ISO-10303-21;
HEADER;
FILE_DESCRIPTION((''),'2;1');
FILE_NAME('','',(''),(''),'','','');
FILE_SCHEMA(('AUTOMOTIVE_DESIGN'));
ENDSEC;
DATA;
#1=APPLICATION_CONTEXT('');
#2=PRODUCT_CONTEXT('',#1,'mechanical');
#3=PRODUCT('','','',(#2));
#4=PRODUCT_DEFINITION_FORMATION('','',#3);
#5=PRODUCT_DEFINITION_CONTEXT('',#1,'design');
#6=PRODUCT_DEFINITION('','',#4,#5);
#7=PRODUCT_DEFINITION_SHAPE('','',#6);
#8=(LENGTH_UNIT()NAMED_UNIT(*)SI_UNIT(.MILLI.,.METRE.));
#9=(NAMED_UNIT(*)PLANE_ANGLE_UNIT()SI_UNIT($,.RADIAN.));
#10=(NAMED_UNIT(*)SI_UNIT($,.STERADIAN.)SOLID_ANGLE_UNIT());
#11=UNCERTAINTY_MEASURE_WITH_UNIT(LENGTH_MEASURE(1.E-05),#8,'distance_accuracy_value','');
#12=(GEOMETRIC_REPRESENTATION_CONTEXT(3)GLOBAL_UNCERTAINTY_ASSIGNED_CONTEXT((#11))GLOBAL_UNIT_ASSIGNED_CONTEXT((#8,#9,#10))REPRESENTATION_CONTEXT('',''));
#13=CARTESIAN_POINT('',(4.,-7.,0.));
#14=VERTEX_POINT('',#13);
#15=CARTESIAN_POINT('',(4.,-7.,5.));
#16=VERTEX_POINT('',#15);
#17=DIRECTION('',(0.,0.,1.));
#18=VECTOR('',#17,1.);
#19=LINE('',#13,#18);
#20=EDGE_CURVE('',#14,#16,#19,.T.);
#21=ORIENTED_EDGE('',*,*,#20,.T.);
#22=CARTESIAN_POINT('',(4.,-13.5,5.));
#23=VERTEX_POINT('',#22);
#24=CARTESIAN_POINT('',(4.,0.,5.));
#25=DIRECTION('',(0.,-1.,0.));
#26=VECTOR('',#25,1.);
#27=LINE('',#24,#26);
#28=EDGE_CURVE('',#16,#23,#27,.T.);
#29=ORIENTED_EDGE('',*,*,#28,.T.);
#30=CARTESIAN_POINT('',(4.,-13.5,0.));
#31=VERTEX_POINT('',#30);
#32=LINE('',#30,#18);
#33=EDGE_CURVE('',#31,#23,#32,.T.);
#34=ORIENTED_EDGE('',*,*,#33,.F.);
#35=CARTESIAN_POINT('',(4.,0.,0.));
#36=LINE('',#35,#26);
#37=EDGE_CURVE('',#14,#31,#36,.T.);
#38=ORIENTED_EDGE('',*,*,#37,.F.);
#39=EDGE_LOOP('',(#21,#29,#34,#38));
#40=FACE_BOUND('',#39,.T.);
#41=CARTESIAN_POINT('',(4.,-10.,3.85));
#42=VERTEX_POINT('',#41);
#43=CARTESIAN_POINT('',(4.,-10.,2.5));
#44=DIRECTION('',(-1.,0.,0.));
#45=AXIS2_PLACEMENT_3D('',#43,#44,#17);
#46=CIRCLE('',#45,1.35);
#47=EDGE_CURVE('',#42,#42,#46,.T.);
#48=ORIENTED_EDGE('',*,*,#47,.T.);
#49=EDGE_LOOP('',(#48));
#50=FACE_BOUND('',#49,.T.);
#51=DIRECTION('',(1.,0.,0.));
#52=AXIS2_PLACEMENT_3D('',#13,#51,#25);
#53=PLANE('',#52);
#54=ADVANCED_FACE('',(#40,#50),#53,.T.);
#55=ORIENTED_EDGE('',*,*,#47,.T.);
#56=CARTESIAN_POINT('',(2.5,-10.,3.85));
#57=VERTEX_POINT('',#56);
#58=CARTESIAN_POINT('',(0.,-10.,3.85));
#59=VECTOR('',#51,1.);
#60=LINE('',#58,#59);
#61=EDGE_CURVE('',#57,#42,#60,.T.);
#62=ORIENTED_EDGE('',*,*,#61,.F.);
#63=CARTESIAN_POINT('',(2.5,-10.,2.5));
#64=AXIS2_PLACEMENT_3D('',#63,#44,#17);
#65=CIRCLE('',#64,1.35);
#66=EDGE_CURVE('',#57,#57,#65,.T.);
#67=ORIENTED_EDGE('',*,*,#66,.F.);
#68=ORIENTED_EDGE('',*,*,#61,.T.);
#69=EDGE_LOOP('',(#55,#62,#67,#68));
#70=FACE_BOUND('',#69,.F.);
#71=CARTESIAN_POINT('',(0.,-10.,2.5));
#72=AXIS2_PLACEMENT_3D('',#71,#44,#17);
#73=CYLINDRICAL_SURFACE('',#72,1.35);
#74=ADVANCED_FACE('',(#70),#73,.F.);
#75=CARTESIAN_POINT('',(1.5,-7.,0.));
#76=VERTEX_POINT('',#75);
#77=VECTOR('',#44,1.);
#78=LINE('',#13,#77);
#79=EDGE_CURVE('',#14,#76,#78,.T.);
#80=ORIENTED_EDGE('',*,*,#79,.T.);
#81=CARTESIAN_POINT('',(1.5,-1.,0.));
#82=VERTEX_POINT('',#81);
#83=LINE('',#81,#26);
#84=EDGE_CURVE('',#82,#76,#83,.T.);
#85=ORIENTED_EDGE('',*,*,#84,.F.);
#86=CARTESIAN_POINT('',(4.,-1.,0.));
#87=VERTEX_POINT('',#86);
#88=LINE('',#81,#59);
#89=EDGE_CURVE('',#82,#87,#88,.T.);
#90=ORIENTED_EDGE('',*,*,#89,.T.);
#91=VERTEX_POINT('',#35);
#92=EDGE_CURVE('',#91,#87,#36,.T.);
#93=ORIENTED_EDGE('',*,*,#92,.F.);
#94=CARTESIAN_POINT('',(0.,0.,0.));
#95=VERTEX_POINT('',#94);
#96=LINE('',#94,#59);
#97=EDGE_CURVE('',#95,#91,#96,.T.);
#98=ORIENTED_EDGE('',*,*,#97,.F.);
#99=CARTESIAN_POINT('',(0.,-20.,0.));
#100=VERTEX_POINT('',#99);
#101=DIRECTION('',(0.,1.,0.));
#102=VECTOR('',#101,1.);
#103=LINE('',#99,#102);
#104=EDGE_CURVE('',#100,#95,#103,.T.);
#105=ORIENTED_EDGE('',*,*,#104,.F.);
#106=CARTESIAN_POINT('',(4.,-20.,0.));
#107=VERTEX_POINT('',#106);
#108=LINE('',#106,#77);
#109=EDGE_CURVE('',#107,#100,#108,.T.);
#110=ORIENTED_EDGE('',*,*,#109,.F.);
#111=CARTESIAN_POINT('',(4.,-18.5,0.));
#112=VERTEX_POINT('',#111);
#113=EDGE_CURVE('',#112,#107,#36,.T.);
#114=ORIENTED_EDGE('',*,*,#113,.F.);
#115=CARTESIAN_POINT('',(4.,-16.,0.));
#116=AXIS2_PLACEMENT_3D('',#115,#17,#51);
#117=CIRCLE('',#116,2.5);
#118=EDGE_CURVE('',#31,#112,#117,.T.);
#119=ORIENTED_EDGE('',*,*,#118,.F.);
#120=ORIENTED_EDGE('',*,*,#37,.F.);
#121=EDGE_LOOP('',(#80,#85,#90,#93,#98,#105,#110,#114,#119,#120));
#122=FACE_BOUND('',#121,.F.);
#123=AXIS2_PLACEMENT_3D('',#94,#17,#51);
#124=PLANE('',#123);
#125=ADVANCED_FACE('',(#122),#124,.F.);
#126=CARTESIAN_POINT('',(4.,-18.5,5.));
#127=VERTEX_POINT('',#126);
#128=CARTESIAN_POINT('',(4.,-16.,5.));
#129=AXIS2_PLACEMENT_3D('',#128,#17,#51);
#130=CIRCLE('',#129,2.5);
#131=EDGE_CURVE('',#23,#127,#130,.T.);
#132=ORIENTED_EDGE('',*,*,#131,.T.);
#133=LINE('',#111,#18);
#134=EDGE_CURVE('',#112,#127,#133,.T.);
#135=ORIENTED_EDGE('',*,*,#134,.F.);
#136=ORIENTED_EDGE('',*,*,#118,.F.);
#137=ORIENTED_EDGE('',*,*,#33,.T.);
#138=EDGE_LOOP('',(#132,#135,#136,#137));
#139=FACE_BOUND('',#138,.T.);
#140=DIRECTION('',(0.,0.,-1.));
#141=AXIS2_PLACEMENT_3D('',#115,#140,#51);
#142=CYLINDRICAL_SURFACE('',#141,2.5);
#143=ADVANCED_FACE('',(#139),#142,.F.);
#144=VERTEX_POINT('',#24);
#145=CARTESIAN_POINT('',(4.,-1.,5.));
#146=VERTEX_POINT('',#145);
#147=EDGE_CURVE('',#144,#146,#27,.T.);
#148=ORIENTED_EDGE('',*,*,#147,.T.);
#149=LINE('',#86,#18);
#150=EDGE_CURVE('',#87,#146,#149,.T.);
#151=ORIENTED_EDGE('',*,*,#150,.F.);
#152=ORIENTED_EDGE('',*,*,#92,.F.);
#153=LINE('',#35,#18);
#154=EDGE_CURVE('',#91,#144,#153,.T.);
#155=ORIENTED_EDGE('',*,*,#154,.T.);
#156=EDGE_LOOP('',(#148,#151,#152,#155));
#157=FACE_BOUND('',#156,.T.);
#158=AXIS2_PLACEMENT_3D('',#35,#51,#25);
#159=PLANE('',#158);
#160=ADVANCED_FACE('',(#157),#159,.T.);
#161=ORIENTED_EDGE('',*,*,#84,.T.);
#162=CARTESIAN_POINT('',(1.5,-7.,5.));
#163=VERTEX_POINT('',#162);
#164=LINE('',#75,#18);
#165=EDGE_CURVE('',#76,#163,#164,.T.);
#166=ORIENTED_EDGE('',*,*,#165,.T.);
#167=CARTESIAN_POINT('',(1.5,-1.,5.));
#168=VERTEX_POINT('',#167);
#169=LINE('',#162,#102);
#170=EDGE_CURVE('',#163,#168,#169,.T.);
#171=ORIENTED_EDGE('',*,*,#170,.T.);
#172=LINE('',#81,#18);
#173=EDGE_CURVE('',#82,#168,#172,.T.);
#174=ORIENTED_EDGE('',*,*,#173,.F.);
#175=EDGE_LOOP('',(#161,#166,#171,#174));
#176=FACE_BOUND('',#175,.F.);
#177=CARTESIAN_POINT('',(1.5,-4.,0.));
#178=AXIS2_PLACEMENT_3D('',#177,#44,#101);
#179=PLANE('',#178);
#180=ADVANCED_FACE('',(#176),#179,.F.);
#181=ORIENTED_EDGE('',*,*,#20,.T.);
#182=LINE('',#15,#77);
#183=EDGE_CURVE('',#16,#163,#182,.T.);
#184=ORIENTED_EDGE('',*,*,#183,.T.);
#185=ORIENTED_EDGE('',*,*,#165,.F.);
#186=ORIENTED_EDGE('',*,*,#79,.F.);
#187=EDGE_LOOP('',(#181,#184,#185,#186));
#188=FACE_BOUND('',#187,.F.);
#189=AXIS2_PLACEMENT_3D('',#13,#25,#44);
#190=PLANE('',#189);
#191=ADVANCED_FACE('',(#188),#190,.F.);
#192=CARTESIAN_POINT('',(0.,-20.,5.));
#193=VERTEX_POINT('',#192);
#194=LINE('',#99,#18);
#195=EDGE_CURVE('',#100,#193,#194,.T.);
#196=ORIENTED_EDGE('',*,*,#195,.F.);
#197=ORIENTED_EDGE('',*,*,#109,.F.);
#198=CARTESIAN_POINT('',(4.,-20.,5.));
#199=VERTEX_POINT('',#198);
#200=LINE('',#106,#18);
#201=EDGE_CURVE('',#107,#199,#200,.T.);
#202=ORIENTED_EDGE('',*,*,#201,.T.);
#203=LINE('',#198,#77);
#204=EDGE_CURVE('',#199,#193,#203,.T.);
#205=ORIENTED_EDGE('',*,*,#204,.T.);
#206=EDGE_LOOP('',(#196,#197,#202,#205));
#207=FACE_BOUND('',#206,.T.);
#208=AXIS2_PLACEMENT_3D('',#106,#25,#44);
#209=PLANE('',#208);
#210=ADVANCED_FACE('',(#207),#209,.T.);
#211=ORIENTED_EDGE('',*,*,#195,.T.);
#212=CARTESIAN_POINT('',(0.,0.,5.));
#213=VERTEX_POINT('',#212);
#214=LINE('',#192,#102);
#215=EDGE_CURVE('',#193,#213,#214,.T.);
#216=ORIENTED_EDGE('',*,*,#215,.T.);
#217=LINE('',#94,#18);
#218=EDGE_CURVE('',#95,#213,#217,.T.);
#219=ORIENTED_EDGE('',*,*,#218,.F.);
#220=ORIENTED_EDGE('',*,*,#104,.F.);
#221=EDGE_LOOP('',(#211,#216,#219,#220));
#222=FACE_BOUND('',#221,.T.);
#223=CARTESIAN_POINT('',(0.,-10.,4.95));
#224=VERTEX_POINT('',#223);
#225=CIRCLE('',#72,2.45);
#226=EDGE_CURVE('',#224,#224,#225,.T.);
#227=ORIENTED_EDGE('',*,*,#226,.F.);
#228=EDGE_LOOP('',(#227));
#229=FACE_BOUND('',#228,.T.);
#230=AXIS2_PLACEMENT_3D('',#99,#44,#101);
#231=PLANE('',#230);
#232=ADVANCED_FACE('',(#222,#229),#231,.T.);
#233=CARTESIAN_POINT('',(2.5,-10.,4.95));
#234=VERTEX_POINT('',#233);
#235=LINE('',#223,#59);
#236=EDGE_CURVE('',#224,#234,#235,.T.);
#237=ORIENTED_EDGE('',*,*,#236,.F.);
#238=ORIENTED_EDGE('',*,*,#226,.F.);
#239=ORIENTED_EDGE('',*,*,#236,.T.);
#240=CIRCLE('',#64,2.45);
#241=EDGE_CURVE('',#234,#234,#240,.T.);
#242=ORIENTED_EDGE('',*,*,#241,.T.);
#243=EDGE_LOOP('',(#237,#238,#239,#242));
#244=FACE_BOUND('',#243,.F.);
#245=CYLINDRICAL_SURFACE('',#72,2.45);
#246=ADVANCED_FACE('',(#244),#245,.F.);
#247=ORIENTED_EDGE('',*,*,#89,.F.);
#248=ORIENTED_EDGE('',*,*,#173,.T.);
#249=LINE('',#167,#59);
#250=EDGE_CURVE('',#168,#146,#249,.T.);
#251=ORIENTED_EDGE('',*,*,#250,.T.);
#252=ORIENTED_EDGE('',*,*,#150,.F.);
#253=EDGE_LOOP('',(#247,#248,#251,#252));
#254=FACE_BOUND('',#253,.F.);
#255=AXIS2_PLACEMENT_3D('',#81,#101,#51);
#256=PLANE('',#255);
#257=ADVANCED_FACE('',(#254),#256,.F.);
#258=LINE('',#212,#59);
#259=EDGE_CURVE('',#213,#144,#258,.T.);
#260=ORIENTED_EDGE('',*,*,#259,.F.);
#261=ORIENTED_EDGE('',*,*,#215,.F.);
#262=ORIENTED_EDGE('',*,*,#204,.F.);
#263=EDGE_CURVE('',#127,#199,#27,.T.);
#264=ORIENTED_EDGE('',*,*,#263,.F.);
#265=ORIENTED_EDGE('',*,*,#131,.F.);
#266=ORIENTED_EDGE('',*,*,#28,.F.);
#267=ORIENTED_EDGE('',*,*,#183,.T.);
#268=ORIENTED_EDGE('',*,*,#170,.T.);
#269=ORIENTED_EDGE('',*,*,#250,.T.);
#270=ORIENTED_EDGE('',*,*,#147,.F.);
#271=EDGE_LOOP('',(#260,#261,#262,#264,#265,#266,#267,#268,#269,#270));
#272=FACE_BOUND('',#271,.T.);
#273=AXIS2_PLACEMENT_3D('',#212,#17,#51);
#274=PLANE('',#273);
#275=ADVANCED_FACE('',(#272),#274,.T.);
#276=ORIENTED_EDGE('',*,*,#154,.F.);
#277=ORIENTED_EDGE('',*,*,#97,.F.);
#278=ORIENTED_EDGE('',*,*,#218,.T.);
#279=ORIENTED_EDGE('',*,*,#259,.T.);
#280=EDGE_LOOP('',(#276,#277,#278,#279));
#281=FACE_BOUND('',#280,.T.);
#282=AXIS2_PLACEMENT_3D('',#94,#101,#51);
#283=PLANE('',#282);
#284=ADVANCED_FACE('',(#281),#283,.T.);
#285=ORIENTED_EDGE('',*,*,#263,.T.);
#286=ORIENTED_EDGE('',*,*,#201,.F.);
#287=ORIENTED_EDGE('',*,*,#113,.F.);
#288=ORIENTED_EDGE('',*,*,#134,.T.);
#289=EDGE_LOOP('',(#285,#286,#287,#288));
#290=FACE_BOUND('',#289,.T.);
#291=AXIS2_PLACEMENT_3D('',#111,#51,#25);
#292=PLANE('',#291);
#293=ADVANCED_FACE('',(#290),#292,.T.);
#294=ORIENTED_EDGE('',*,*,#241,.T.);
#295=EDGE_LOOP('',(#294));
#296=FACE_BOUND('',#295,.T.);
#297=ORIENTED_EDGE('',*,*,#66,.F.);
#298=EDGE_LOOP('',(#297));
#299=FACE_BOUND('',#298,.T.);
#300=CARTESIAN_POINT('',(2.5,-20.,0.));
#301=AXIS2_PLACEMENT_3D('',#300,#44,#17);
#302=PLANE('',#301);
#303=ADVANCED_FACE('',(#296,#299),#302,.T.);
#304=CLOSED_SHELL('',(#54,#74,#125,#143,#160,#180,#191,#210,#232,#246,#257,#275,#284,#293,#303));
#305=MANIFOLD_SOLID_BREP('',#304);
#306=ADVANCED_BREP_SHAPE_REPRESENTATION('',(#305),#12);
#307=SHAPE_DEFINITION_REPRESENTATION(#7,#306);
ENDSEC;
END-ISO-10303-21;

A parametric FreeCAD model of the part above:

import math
import FreeCAD as App
import Part
import Sketcher
from FreeCAD import Vector

doc = App.newDocument("Part")
body = doc.addObject("PartDesign::Body", "Body")

sketch1 = body.newObject("Sketcher::SketchObject", "Sketch")
sketch1.AttachmentSupport = (doc.getObject("XY_Plane"), [""])
sketch1.MapMode = "FlatFace"
sketch1.addGeometry([
    Part.LineSegment(Vector(4, 0, 0), Vector(0, 0, 0)),
    Part.LineSegment(Vector(0, 0, 0), Vector(0, -20, 0)),
    Part.LineSegment(Vector(0, -20, 0), Vector(4, -20, 0)),
    Part.LineSegment(Vector(4, -20, 0), Vector(4, -18.5, 0)),
    Part.ArcOfCircle(Part.Circle(Vector(4, -16, 0), Vector(0, 0, 1), 2.5), math.radians(90), math.radians(270)),
    Part.LineSegment(Vector(4, -13.5, 0), Vector(4, -7, 0)),
    Part.LineSegment(Vector(4, -7, 0), Vector(1.5, -7, 0)),
    Part.LineSegment(Vector(1.5, -7, 0), Vector(1.5, -1, 0)),
    Part.LineSegment(Vector(1.5, -1, 0), Vector(4, -1, 0)),
    Part.LineSegment(Vector(4, -1, 0), Vector(4, 0, 0)),
], False)
sketch1.addConstraint([
    Sketcher.Constraint("Coincident", 0, 2, 1, 1),
    Sketcher.Constraint("Coincident", 1, 2, 2, 1),
    Sketcher.Constraint("Coincident", 2, 2, 3, 1),
    Sketcher.Constraint("Coincident", 3, 2, 4, 2),
    Sketcher.Constraint("Coincident", 4, 1, 5, 1),
    Sketcher.Constraint("Coincident", 5, 2, 6, 1),
    Sketcher.Constraint("Coincident", 6, 2, 7, 1),
    Sketcher.Constraint("Coincident", 7, 2, 8, 1),
    Sketcher.Constraint("Coincident", 8, 2, 9, 1),
    Sketcher.Constraint("Coincident", 9, 2, 0, 1),
    Sketcher.Constraint("Horizontal", 0),
    Sketcher.Constraint("Vertical", 1),
    Sketcher.Constraint("Horizontal", 2),
    Sketcher.Constraint("Vertical", 3),
    Sketcher.Constraint("Vertical", 5),
    Sketcher.Constraint("Horizontal", 6),
    Sketcher.Constraint("Vertical", 7),
    Sketcher.Constraint("Horizontal", 8),
    Sketcher.Constraint("Vertical", 9),
    Sketcher.Constraint("Coincident", 0, 2, -1, 1),
    Sketcher.Constraint("Vertical", 4, 3, 2, 2),
    Sketcher.Constraint("Vertical", 3, 2, 4, 1),
    Sketcher.Constraint("Vertical", 5, 2, 8, 2),
    Sketcher.Constraint("Radius", 4, 2.5),
    Sketcher.Constraint("DistanceX", 0, 2, 0, 1, 4.0),
    Sketcher.Constraint("DistanceY", 1, 2, 1, 1, 20.0),
    Sketcher.Constraint("DistanceY", 1, 2, 4, 3, 4.0),
    Sketcher.Constraint("DistanceY", 7, 1, 7, 2, 6.0),
    Sketcher.Constraint("DistanceY", 9, 1, 9, 2, 1.0),
    Sketcher.Constraint("DistanceX", 6, 2, 6, 1, 2.5),
])
pad1 = body.newObject("PartDesign::Pad", "Pad")
pad1.Profile = sketch1
pad1.Length = 5

sketch2 = body.newObject("Sketcher::SketchObject", "Sketch001")
sketch2.AttachmentSupport = (doc.getObject("YZ_Plane"), [""])
sketch2.MapMode = "FlatFace"
sketch2.addGeometry(Part.Circle(Vector(-10, 2.5, 0), Vector(0, 0, 1), 1.35), False)
sketch2.addConstraint([
    Sketcher.Constraint("Diameter", 0, 2.7),
    Sketcher.Constraint("DistanceX", 0, 3, -1, 1, 10.0),
    Sketcher.Constraint("DistanceY", -1, 1, 0, 3, 2.5),
])
pocket1 = body.newObject("PartDesign::Pocket", "Pocket")
pocket1.Profile = sketch2
pocket1.Length = 20
pocket1.Reversed = True

sketch3 = body.newObject("Sketcher::SketchObject", "Sketch002")
sketch3.AttachmentSupport = (doc.getObject("YZ_Plane"), [""])
sketch3.MapMode = "FlatFace"
sketch3.addGeometry(Part.Circle(Vector(-10, 2.5, 0), Vector(0, 0, 1), 2.45), False)
sketch3.addConstraint([
    Sketcher.Constraint("Diameter", 0, 4.9),
    Sketcher.Constraint("DistanceX", 0, 3, -1, 1, 10.0),
    Sketcher.Constraint("DistanceY", -1, 1, 0, 3, 2.5),
])
pocket2 = body.newObject("PartDesign::Pocket", "Pocket001")
pocket2.Profile = sketch3
pocket2.Length = 2.5
pocket2.Reversed = True

doc.recompute()
